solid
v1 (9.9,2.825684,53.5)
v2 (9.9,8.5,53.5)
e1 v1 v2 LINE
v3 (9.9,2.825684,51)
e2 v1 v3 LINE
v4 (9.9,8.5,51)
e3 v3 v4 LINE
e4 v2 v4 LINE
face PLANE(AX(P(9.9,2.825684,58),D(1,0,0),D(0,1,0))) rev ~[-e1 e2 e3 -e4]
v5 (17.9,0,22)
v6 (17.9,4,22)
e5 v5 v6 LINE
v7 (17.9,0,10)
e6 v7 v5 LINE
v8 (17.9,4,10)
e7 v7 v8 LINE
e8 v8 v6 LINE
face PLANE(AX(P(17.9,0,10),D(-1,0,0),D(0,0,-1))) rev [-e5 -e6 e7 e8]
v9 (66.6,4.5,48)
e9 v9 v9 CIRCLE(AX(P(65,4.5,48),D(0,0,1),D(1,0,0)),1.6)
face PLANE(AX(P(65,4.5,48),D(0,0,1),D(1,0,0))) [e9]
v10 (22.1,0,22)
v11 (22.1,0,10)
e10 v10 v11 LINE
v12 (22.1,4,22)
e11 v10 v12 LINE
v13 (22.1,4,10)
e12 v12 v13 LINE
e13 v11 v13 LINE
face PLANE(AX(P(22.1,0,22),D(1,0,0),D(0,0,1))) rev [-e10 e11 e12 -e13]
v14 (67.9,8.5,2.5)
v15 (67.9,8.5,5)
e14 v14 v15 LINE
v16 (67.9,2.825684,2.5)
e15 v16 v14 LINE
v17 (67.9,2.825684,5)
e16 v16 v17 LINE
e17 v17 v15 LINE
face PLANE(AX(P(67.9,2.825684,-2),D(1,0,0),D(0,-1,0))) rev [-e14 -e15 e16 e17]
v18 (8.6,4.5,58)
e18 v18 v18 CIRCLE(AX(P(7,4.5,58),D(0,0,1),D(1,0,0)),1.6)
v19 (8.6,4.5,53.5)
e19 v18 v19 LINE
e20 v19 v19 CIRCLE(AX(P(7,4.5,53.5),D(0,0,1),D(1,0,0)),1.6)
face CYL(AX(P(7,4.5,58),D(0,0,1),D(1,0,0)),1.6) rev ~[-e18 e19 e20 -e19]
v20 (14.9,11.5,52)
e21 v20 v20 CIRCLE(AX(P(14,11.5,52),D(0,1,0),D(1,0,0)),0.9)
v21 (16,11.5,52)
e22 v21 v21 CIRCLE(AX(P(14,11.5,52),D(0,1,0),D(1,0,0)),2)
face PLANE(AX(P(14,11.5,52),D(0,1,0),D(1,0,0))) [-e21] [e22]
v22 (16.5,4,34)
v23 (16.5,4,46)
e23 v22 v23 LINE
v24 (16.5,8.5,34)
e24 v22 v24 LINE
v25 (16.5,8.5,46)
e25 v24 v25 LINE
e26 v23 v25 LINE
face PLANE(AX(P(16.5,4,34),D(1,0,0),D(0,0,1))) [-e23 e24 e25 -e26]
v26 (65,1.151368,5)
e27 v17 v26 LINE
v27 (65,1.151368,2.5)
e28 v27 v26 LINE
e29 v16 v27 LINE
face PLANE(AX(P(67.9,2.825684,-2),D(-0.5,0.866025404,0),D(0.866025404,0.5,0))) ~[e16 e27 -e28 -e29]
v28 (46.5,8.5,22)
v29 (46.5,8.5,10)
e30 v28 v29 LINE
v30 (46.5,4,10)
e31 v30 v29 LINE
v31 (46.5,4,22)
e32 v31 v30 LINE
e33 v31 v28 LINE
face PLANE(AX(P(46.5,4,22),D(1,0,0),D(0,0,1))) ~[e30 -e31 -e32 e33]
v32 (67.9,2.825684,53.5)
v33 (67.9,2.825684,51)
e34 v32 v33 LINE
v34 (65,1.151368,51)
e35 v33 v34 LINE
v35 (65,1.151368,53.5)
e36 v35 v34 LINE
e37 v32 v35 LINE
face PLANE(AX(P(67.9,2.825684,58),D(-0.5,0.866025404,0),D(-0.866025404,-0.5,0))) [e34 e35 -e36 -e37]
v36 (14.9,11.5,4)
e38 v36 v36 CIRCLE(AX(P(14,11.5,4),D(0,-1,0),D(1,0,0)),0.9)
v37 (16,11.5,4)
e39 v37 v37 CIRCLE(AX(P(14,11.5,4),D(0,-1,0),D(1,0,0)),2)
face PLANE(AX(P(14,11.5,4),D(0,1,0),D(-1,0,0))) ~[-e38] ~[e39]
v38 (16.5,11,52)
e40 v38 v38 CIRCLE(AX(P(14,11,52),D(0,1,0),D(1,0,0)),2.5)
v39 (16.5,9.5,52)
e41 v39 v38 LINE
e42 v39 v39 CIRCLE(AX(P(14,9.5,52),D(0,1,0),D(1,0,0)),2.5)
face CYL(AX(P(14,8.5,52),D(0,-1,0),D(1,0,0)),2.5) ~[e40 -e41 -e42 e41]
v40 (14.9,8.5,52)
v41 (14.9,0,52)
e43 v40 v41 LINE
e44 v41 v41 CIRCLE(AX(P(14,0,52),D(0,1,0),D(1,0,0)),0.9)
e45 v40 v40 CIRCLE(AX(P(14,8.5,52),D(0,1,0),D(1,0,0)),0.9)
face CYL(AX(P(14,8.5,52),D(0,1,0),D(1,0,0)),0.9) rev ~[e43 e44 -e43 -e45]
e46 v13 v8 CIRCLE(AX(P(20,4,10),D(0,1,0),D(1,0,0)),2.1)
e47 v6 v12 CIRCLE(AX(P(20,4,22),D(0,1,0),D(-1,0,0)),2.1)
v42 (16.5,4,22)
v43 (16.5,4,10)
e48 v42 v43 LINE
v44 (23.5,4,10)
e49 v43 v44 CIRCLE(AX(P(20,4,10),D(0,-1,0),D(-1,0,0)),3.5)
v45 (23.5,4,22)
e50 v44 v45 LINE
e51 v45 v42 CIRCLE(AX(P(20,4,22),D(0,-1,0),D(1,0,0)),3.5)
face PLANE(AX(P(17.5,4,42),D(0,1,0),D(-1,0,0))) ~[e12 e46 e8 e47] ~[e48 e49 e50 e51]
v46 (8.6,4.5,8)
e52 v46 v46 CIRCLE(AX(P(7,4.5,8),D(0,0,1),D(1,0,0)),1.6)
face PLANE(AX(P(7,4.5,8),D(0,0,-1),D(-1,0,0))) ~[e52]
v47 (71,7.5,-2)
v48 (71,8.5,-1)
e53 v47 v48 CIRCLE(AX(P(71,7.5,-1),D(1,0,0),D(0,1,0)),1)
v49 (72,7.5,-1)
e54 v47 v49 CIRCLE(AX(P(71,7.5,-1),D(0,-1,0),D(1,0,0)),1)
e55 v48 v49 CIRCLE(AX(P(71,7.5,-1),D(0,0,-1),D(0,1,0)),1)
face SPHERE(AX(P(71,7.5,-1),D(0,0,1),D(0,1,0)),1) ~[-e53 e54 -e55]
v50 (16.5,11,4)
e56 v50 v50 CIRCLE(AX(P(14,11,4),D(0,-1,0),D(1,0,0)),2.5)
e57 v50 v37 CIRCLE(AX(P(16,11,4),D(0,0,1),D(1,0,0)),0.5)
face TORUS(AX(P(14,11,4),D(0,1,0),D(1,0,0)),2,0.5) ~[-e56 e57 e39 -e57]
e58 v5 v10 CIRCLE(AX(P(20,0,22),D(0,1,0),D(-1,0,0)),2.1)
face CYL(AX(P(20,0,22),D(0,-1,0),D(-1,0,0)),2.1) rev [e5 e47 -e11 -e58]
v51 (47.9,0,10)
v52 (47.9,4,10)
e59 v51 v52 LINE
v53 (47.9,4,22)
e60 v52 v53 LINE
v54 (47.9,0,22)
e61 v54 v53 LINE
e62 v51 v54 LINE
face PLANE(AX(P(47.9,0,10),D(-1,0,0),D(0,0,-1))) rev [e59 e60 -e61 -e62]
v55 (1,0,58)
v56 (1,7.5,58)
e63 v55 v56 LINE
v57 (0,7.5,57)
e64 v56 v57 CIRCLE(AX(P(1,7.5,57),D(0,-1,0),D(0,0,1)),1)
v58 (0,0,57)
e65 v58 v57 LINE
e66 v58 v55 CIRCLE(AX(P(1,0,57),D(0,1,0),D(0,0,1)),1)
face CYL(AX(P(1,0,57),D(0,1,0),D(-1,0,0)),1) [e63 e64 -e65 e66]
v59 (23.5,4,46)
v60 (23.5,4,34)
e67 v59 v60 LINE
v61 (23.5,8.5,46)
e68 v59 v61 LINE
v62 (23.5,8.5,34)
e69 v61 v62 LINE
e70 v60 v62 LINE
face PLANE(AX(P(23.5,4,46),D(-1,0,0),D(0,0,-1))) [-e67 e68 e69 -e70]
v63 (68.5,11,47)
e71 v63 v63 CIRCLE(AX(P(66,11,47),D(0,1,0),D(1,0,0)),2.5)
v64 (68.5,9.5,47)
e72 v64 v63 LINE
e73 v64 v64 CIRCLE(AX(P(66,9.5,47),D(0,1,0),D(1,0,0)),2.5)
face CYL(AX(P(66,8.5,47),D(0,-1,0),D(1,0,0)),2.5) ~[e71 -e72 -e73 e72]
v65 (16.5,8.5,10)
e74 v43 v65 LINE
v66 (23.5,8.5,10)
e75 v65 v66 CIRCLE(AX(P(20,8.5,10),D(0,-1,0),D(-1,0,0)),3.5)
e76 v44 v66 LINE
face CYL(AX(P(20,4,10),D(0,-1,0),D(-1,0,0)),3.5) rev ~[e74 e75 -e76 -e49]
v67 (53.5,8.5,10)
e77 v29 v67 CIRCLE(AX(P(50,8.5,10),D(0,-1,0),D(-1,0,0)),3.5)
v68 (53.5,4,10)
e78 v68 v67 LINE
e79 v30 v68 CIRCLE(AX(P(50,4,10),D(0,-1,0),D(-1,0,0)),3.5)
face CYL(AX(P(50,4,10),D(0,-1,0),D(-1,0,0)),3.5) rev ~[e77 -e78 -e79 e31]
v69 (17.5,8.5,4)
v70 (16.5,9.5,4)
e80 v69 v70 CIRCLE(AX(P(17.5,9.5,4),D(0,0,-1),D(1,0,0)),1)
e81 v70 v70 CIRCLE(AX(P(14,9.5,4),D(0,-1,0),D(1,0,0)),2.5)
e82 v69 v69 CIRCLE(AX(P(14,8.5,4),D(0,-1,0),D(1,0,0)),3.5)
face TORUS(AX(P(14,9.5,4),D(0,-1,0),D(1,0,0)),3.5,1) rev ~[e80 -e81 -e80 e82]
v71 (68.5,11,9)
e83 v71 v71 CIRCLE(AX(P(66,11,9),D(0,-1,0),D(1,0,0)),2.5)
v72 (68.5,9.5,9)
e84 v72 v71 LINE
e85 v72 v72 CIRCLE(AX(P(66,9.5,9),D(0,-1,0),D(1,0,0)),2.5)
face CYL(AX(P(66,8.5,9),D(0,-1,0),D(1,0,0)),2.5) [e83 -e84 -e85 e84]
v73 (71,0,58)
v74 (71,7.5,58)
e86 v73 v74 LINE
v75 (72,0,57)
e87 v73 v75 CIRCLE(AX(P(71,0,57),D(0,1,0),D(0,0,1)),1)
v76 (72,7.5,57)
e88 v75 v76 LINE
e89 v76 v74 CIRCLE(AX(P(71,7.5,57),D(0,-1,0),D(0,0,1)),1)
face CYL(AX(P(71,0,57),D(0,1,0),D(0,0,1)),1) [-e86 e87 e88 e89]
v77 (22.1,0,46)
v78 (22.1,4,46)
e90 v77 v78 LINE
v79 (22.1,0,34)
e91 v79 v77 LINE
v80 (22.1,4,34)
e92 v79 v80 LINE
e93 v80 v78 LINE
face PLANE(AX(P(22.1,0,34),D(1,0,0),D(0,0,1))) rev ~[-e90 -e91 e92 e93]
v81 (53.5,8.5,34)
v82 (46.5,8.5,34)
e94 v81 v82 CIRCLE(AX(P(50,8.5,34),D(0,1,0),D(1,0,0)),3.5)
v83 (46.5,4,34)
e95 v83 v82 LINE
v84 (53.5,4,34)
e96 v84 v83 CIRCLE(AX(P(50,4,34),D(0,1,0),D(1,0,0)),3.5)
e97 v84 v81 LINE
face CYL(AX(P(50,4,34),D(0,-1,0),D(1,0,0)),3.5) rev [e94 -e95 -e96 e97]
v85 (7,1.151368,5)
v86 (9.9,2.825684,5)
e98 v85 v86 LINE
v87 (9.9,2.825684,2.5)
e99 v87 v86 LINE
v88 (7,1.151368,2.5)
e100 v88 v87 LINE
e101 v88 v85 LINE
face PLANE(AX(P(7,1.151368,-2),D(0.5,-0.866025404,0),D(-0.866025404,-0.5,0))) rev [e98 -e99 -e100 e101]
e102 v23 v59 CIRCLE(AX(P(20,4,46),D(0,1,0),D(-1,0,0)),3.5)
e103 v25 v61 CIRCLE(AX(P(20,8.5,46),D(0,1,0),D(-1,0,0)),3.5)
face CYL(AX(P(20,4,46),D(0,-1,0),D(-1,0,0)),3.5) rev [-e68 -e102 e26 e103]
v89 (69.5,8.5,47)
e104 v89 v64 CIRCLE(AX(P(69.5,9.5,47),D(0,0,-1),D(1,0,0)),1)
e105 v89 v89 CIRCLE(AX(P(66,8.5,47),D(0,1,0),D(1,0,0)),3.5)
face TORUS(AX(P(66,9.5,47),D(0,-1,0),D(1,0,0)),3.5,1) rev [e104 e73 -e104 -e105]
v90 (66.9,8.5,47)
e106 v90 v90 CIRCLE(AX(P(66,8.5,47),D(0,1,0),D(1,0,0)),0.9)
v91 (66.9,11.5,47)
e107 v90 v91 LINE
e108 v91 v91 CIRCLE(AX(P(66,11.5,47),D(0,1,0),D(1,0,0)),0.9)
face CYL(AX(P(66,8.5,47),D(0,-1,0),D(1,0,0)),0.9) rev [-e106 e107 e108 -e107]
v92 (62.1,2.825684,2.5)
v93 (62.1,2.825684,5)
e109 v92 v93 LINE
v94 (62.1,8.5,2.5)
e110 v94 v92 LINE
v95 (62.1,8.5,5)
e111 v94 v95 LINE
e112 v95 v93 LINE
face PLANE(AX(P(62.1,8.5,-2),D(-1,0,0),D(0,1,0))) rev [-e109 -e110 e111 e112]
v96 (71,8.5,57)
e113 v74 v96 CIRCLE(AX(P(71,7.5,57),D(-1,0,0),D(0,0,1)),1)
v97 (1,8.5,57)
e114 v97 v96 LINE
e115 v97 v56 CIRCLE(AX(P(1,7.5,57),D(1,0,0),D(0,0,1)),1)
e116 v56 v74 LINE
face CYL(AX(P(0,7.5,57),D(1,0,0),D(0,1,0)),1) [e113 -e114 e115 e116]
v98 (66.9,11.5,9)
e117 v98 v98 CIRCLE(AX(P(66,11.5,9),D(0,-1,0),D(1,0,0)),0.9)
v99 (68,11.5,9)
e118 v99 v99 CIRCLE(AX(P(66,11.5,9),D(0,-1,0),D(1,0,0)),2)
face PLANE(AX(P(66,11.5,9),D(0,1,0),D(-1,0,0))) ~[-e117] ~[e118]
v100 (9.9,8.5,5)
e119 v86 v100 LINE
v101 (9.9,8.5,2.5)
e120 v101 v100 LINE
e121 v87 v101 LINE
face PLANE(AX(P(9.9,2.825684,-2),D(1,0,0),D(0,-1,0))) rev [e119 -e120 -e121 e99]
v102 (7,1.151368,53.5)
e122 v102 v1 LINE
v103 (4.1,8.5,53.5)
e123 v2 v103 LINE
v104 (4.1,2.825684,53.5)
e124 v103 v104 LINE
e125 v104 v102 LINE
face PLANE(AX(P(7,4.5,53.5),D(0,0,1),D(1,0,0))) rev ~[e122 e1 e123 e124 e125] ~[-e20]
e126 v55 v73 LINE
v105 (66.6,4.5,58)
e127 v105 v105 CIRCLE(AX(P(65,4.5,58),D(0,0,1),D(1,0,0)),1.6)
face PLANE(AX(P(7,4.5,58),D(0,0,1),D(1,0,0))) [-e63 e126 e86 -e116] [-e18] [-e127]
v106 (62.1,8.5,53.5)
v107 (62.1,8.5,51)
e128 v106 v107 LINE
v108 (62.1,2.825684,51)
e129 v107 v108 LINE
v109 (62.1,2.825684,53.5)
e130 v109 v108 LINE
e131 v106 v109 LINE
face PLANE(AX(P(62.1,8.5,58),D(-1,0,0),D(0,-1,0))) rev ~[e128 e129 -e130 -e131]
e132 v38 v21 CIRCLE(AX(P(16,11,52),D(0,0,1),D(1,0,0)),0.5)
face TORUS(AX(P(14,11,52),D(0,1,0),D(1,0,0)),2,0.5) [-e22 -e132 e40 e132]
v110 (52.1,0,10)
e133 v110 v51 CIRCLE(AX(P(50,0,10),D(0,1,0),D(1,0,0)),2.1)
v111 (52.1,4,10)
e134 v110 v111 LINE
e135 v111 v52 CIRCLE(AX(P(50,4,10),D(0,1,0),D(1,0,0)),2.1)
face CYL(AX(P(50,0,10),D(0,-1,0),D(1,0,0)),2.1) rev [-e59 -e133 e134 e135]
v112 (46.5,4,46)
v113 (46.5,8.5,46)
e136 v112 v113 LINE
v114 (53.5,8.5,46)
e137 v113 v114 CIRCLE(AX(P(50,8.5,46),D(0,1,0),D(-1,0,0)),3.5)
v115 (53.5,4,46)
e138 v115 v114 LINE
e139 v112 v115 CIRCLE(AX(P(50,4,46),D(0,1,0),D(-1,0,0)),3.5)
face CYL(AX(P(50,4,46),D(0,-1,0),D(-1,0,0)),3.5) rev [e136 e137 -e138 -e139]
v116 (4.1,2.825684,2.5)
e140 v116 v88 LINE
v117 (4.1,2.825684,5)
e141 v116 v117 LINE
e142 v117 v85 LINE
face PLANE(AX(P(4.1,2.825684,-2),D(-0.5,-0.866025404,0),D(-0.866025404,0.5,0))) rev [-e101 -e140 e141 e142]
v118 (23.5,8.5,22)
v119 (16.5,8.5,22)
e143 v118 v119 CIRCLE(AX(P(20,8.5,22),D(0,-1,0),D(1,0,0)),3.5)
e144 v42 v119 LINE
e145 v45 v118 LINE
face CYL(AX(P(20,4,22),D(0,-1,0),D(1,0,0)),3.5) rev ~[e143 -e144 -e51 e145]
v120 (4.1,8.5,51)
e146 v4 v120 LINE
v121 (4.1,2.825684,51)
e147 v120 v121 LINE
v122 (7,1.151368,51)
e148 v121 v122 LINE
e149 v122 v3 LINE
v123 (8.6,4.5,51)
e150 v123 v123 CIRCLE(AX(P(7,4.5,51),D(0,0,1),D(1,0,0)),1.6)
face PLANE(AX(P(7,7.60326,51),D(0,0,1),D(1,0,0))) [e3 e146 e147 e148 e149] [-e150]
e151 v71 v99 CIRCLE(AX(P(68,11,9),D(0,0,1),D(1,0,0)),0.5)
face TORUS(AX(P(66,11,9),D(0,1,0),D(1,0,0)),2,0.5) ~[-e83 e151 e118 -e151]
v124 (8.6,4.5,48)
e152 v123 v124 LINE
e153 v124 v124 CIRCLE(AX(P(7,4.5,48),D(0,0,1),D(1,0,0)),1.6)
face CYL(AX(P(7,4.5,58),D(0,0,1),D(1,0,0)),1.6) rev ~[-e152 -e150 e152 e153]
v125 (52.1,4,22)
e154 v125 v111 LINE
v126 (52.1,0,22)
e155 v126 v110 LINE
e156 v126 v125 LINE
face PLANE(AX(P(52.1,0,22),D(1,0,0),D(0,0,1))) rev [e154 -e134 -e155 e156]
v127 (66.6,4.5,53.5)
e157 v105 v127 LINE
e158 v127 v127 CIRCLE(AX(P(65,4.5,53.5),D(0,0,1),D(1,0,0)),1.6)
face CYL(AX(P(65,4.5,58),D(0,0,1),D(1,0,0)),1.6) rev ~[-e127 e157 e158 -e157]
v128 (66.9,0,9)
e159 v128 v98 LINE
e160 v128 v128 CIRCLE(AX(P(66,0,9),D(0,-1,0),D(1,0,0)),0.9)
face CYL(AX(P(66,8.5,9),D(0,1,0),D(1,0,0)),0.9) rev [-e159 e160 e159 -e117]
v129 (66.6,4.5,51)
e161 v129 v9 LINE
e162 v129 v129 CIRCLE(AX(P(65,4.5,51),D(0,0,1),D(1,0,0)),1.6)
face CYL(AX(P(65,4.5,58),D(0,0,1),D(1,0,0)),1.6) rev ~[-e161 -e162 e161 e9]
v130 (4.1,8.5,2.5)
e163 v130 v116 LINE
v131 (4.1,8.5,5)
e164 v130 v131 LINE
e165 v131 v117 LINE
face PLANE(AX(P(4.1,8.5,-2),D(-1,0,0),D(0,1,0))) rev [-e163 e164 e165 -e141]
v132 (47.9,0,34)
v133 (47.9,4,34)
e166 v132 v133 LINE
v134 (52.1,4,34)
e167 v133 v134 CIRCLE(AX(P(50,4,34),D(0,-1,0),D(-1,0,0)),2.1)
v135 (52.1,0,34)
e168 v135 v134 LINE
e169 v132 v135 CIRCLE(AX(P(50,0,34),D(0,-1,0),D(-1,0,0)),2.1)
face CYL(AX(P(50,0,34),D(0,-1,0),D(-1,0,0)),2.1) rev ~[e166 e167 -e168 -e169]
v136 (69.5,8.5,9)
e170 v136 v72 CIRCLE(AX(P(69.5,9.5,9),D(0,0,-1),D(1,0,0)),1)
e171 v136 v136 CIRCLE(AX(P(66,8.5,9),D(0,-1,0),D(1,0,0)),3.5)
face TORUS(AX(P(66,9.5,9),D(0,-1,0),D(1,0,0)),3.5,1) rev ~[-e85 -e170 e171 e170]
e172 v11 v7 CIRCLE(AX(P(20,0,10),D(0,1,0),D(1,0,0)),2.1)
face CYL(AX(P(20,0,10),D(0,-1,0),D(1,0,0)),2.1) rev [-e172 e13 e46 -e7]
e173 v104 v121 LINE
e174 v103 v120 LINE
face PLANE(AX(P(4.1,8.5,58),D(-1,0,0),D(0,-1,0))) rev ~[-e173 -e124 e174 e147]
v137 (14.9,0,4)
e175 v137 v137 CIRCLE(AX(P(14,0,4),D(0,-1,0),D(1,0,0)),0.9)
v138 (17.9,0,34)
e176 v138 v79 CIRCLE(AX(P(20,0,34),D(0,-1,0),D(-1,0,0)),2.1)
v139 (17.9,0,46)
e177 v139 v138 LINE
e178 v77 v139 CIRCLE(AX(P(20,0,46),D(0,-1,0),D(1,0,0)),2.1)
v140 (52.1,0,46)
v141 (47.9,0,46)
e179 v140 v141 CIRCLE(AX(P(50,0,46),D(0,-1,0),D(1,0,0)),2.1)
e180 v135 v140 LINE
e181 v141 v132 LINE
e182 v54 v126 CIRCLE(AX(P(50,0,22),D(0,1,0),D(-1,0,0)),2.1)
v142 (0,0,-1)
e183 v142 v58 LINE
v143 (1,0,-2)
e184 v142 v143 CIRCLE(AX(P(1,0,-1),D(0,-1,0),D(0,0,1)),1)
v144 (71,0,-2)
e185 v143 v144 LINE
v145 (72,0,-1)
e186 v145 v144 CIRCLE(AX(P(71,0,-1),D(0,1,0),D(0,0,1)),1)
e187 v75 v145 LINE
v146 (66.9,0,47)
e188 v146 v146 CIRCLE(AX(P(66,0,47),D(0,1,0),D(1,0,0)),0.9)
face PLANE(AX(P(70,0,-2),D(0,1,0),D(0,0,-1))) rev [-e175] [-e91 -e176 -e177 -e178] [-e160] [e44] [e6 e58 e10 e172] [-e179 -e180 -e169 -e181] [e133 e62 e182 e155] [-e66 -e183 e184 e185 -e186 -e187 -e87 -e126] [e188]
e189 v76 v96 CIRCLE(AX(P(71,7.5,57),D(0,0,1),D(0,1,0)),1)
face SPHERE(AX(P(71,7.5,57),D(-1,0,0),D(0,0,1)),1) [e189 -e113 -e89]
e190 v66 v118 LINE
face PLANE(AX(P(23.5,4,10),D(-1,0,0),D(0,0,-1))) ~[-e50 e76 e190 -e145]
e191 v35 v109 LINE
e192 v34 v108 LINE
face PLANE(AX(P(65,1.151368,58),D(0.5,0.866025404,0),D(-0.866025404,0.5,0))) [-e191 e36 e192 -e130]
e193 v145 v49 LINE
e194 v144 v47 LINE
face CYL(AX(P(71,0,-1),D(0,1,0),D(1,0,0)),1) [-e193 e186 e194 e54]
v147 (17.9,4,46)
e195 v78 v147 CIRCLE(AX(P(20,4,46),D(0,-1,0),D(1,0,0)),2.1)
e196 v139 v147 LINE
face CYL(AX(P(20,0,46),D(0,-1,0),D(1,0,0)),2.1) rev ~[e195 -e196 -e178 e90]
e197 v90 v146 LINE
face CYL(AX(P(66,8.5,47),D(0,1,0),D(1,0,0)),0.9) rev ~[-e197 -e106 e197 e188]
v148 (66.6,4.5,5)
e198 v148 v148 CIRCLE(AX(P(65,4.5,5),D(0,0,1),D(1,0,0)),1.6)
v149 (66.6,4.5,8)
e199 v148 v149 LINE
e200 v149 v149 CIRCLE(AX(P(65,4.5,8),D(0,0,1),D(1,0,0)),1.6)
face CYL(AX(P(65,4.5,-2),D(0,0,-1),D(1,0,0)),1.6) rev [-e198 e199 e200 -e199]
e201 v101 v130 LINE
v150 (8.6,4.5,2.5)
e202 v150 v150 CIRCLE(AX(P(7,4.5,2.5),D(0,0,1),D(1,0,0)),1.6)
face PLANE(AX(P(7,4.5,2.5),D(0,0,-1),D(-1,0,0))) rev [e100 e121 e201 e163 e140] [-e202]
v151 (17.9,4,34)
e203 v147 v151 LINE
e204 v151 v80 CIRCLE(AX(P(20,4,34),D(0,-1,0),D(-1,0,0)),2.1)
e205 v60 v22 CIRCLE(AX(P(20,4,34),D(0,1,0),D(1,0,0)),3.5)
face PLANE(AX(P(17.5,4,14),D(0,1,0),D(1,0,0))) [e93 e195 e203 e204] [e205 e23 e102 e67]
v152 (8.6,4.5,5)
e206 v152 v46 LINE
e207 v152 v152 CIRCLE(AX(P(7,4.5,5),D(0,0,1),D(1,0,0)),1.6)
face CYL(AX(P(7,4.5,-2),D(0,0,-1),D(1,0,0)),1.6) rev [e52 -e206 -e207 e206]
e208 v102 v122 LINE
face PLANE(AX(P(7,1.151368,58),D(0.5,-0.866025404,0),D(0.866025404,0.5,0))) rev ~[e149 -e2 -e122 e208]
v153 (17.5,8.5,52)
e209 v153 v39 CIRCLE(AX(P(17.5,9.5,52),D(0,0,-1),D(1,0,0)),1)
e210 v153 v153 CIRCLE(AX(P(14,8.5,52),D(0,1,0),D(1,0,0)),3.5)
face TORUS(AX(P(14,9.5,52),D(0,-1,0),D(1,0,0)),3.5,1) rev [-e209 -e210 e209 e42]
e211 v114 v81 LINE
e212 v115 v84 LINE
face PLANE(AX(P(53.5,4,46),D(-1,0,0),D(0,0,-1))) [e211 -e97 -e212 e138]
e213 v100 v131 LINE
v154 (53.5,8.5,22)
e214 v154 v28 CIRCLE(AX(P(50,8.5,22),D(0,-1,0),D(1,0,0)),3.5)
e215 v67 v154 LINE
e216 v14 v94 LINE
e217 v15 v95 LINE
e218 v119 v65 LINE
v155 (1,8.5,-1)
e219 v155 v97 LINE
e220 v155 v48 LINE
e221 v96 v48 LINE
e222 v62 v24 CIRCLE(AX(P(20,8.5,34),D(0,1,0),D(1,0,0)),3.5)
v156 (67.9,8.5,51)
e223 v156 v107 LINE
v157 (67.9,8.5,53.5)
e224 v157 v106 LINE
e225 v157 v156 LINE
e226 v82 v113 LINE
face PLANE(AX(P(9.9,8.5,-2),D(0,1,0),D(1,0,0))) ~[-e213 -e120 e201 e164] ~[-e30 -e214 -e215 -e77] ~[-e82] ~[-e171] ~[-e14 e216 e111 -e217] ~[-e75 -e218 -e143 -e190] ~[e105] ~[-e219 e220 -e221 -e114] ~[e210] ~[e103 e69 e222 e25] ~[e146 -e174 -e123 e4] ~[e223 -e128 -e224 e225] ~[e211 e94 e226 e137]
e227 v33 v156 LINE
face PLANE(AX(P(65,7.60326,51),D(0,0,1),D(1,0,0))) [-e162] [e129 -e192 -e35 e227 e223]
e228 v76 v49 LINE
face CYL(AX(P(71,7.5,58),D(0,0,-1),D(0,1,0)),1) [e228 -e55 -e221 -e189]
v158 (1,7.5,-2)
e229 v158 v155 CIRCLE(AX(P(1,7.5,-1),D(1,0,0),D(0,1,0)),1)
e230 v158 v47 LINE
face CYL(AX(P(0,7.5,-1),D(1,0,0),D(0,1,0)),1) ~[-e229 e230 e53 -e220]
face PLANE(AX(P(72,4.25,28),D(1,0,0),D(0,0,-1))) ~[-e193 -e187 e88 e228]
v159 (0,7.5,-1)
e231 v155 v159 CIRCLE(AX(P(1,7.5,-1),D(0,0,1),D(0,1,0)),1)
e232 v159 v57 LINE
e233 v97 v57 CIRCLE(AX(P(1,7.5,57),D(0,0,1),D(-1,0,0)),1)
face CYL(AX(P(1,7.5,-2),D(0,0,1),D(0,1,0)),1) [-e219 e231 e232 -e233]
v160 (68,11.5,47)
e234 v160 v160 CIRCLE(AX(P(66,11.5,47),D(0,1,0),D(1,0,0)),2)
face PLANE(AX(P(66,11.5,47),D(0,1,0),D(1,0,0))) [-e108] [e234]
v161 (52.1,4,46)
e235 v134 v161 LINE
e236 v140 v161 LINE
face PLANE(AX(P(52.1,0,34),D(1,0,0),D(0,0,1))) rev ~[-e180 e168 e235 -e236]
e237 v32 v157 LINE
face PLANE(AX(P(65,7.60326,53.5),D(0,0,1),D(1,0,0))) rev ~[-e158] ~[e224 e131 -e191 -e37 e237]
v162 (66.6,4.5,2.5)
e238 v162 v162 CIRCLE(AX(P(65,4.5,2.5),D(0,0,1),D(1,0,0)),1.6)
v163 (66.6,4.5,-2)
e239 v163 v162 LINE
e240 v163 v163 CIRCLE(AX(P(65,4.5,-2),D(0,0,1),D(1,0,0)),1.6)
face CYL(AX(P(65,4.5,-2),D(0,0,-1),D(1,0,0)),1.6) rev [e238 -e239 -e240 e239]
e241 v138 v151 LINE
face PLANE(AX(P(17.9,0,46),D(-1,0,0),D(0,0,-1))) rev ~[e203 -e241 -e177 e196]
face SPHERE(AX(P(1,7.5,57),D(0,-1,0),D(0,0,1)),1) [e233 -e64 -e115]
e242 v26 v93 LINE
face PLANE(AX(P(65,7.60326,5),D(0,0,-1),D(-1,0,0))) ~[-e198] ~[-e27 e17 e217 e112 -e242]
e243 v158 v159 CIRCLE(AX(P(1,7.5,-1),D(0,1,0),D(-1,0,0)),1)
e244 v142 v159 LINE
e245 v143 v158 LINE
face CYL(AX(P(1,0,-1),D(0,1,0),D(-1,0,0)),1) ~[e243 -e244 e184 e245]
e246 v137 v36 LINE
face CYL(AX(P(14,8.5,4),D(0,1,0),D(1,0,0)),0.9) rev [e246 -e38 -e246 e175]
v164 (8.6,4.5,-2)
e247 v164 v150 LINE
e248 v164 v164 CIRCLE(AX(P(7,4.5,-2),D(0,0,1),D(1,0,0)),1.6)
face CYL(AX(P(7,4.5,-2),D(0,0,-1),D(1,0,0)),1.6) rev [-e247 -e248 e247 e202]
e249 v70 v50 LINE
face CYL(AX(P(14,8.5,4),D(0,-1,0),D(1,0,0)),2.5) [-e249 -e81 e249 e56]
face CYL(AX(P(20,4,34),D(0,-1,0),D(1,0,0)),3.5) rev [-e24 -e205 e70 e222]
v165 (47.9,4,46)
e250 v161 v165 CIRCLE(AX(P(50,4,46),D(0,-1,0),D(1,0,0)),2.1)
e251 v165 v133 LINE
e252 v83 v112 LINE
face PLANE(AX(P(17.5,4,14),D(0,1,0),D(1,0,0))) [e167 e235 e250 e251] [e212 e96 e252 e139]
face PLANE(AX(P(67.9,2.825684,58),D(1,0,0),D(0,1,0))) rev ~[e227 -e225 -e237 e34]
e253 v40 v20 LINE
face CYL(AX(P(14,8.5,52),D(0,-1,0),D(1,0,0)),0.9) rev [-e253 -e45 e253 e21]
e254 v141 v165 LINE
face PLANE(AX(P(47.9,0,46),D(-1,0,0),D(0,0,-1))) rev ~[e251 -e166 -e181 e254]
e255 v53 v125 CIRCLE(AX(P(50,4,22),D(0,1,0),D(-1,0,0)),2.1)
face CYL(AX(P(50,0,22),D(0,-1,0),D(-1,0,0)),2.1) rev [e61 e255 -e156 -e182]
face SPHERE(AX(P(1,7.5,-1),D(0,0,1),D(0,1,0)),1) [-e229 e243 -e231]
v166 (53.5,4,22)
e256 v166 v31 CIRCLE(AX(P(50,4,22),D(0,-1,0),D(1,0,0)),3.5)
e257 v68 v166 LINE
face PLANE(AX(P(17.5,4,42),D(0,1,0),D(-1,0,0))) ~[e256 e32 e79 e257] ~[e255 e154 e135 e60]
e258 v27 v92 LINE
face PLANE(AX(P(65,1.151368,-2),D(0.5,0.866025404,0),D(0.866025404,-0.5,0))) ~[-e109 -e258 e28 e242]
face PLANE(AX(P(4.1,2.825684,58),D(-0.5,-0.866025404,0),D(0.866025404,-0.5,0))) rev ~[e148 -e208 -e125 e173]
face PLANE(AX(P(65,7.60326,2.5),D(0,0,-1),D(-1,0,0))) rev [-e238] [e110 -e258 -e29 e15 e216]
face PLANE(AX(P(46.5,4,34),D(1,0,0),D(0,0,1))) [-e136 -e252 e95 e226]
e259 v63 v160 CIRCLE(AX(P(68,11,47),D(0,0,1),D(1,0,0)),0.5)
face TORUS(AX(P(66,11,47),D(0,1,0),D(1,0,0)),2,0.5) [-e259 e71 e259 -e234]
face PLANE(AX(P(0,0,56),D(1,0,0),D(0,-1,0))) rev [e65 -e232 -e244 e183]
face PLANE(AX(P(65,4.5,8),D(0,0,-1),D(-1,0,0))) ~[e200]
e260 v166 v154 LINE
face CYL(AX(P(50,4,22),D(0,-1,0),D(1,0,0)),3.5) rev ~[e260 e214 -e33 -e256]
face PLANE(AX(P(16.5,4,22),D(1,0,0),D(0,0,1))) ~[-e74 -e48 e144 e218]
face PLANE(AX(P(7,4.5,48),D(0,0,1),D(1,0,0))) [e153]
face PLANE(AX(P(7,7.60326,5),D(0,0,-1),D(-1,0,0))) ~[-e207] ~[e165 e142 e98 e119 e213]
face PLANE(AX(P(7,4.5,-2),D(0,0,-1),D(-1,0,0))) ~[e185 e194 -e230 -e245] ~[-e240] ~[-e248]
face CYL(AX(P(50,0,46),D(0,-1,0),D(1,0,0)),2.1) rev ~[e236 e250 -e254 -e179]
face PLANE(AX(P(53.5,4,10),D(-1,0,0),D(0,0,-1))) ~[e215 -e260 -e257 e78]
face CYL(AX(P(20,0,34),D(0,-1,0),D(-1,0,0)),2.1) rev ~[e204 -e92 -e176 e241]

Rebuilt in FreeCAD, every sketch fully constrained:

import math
import FreeCAD as App
import Part
import Sketcher
Q = App.Units.Quantity


def edges_at(feature, points):
    """Names of the edges that pass closest to the given points."""
    edges = feature.Shape.Edges
    near = lambda p: min(range(len(edges)), key=lambda i: edges[i].distToShape(Part.Vertex(*p))[0])
    return sorted({f"Edge{near(p) + 1}" for p in points})


def add_polygon(sketch, points):
    """Adds a closed chain of lines whose ends are joined by coincident constraints."""
    first, n = sketch.GeometryCount, len(points)
    for a, b in zip(points, points[1:] + points[:1]):
        sketch.addGeometry(Part.LineSegment(App.Vector(*a, 0), App.Vector(*b, 0)), False)
    for i in range(n):
        sketch.addConstraint(Sketcher.Constraint("Coincident", first + i, 2, first + (i + 1) % n, 1))

doc = App.newDocument("Part")
params = doc.addObject("Spreadsheet::Sheet", "Params")
for row, (alias, value) in enumerate([
    ("sketch1_radius", "2.1 mm"),
    ("sketch1_width", "70 mm"),
    ("sketch1_height", "56 mm"),
    ("sketch1_height2", "12 mm"),
    ("pad1_length", "4 mm"),
    ("sketch2_radius", "3.5 mm"),
    ("sketch2_width", "70 mm"),
    ("sketch2_height", "56 mm"),
    ("sketch2_height2", "12 mm"),
    ("pad2_length", "4.5 mm"),
    ("sketch3_width", "70 mm"),
    ("sketch3_height", "8.5 mm"),
    ("pad3_length", "2 mm"),
    ("sketch4_width", "70 mm"),
    ("sketch4_height", "8.5 mm"),
    ("pad4_length", "2 mm"),
    ("sketch5_diameter", "5 mm"),
    ("sketch5_diameter2", "1.8 mm"),
    ("pad5_length", "3 mm"),
    ("fillet_radius", "1 mm"),
    ("fillet2_radius", "0.5 mm"),
    ("sketch6_diameter", "1.8 mm"),
    ("pocket1_length", "30 mm"),
    ("sketch7_height", "60 mm"),
    ("sketch7_width", "8.5 mm"),
    ("pad6_length", "2 mm"),
    ("sketch8_width", "5.8 mm"),
    ("pocket2_length", "7 mm"),
    ("sketch9_diameter", "3.2 mm"),
    ("sketch9_width", "5.8 mm"),
    ("pad7_length", "4.5 mm"),
    ("sketch10_diameter", "3.2 mm"),
    ("pocket3_length", "10 mm"),
    ("pocket4_length", "30 mm"),
    ("fillet3_radius", "1 mm"),
], start=1):
    params.set(f"A{row}", alias)
    params.set(f"B{row}", "=" + value)
    params.setAlias(f"B{row}", alias)

body = doc.addObject("PartDesign::Body", "Body")

sketch1 = doc.addObject("Sketcher::SketchObject", "Sketch")
body.addObject(sketch1)
sketch1.AttachmentSupport = (doc.XZ_Plane, [""])
sketch1.MapMode = "FlatFace"
add_polygon(sketch1, [(0, 0), (0, 56), (70, 56), (70, 0)])
sketch1.addGeometry(Part.LineSegment(App.Vector(17.9, 46, 0), App.Vector(17.9, 34, 0)), False)
sketch1.addGeometry(Part.ArcOfCircle(Part.Circle(App.Vector(20, 34, 0), App.Vector(0, 0, 1), 2.1), math.radians(180), math.radians(360)), False)
sketch1.addGeometry(Part.LineSegment(App.Vector(22.1, 34, 0), App.Vector(22.1, 46, 0)), False)
sketch1.addGeometry(Part.ArcOfCircle(Part.Circle(App.Vector(20, 46, 0), App.Vector(0, 0, 1), 2.1), math.radians(0), math.radians(180)), False)
sketch1.addGeometry(Part.ArcOfCircle(Part.Circle(App.Vector(50, 34, 0), App.Vector(0, 0, 1), 2.1), math.radians(180), math.radians(360)), False)
sketch1.addGeometry(Part.LineSegment(App.Vector(52.1, 34, 0), App.Vector(52.1, 46, 0)), False)
sketch1.addGeometry(Part.ArcOfCircle(Part.Circle(App.Vector(50, 46, 0), App.Vector(0, 0, 1), 2.1), math.radians(0), math.radians(180)), False)
sketch1.addGeometry(Part.LineSegment(App.Vector(47.9, 46, 0), App.Vector(47.9, 34, 0)), False)
sketch1.addGeometry(Part.ArcOfCircle(Part.Circle(App.Vector(20, 22, 0), App.Vector(0, 0, 1), 2.1), math.radians(0), math.radians(180)), False)
sketch1.addGeometry(Part.LineSegment(App.Vector(17.9, 22, 0), App.Vector(17.9, 10, 0)), False)
sketch1.addGeometry(Part.ArcOfCircle(Part.Circle(App.Vector(20, 10, 0), App.Vector(0, 0, 1), 2.1), math.radians(180), math.radians(360)), False)
sketch1.addGeometry(Part.LineSegment(App.Vector(22.1, 10, 0), App.Vector(22.1, 22, 0)), False)
sketch1.addGeometry(Part.LineSegment(App.Vector(52.1, 10, 0), App.Vector(52.1, 22, 0)), False)
sketch1.addGeometry(Part.ArcOfCircle(Part.Circle(App.Vector(50, 22, 0), App.Vector(0, 0, 1), 2.1), math.radians(0), math.radians(180)), False)
sketch1.addGeometry(Part.LineSegment(App.Vector(47.9, 22, 0), App.Vector(47.9, 10, 0)), False)
sketch1.addGeometry(Part.ArcOfCircle(Part.Circle(App.Vector(50, 10, 0), App.Vector(0, 0, 1), 2.1), math.radians(180), math.radians(360)), False)
sketch1.addConstraint([
    Sketcher.Constraint("Tangent", 4, 2, 5, 1),
    Sketcher.Constraint("Tangent", 5, 2, 6, 1),
    Sketcher.Constraint("Tangent", 6, 2, 7, 1),
    Sketcher.Constraint("Tangent", 7, 2, 4, 1),
    Sketcher.Constraint("Tangent", 8, 2, 9, 1),
    Sketcher.Constraint("Tangent", 9, 2, 10, 1),
    Sketcher.Constraint("Tangent", 10, 2, 11, 1),
    Sketcher.Constraint("Tangent", 11, 2, 8, 1),
    Sketcher.Constraint("Tangent", 12, 2, 13, 1),
    Sketcher.Constraint("Tangent", 13, 2, 14, 1),
    Sketcher.Constraint("Tangent", 14, 2, 15, 1),
    Sketcher.Constraint("Tangent", 15, 2, 12, 1),
    Sketcher.Constraint("Tangent", 16, 2, 17, 1),
    Sketcher.Constraint("Tangent", 17, 2, 18, 1),
    Sketcher.Constraint("Tangent", 18, 2, 19, 1),
    Sketcher.Constraint("Tangent", 19, 2, 16, 1),
    Sketcher.Constraint("Vertical", 0),
    Sketcher.Constraint("Horizontal", 1),
    Sketcher.Constraint("Vertical", 2),
    Sketcher.Constraint("Horizontal", 3),
    Sketcher.Constraint("Vertical", 4),
    Sketcher.Constraint("Vertical", 6),
    Sketcher.Constraint("Vertical", 9),
    Sketcher.Constraint("Vertical", 11),
    Sketcher.Constraint("Vertical", 13),
    Sketcher.Constraint("Vertical", 15),
    Sketcher.Constraint("Vertical", 16),
    Sketcher.Constraint("Vertical", 18),
    Sketcher.Constraint("Coincident", 3, 2, -1, 1),
    Sketcher.Constraint("Equal", 7, 8),
    Sketcher.Constraint("Equal", 10, 12),
    Sketcher.Constraint("Equal", 14, 17),
    Sketcher.Constraint("Horizontal", 5, 3, 8, 3),
    Sketcher.Constraint("Horizontal", 7, 3, 10, 3),
    Sketcher.Constraint("Horizontal", 12, 3, 17, 3),
    Sketcher.Constraint("Horizontal", 14, 3, 19, 3),
    Sketcher.Constraint("Vertical", 7, 3, 12, 3),
    Sketcher.Constraint("Vertical", 10, 3, 17, 3),
    Sketcher.Constraint("Equal", 11, 13),
    Sketcher.Constraint("Radius", 5, 2.1),
    Sketcher.Constraint("DistanceX", 1, 1, 1, 2, 70.0),
    Sketcher.Constraint("DistanceY", 0, 1, 0, 2, 56.0),
    Sketcher.Constraint("DistanceY", 4, 2, 4, 1, 12.0),
    Sketcher.Constraint("DistanceX", -1, 1, 5, 3, 20.0),
    Sketcher.Constraint("DistanceY", -1, 1, 5, 3, 34.0),
    Sketcher.Constraint("DistanceX", -1, 1, 8, 3, 50.0),
    Sketcher.Constraint("DistanceY", -1, 1, 12, 3, 22.0),
])
sketch1.setExpression("Constraints[43]", "Params.sketch1_radius")
sketch1.setExpression("Constraints[44]", "Params.sketch1_width")
sketch1.setExpression("Constraints[45]", "Params.sketch1_height")
sketch1.setExpression("Constraints[46]", "Params.sketch1_height2")
pad1 = doc.addObject("PartDesign::Pad", "Pad")
body.addObject(pad1)
pad1.Profile = sketch1
pad1.setExpression("Length", "Params.pad1_length")
pad1.Reversed = True

sketch2 = doc.addObject("Sketcher::SketchObject", "Sketch001")
body.addObject(sketch2)
sketch2.AttachmentSupport = (doc.XZ_Plane, [""])
sketch2.MapMode = "FlatFace"
sketch2.AttachmentOffset = App.Placement(App.Vector(0, 0, -4), App.Rotation())
add_polygon(sketch2, [(0, 0), (0, 56), (70, 56), (70, 0)])
sketch2.addGeometry(Part.LineSegment(App.Vector(16.5, 46, 0), App.Vector(16.5, 34, 0)), False)
sketch2.addGeometry(Part.ArcOfCircle(Part.Circle(App.Vector(20, 34, 0), App.Vector(0, 0, 1), 3.5), math.radians(180), math.radians(360)), False)
sketch2.addGeometry(Part.LineSegment(App.Vector(23.5, 34, 0), App.Vector(23.5, 46, 0)), False)
sketch2.addGeometry(Part.ArcOfCircle(Part.Circle(App.Vector(20, 46, 0), App.Vector(0, 0, 1), 3.5), math.radians(0), math.radians(180)), False)
sketch2.addGeometry(Part.LineSegment(App.Vector(46.5, 46, 0), App.Vector(46.5, 34, 0)), False)
sketch2.addGeometry(Part.ArcOfCircle(Part.Circle(App.Vector(50, 34, 0), App.Vector(0, 0, 1), 3.5), math.radians(180), math.radians(360)), False)
sketch2.addGeometry(Part.LineSegment(App.Vector(53.5, 34, 0), App.Vector(53.5, 46, 0)), False)
sketch2.addGeometry(Part.ArcOfCircle(Part.Circle(App.Vector(50, 46, 0), App.Vector(0, 0, 1), 3.5), math.radians(0), math.radians(180)), False)
sketch2.addGeometry(Part.LineSegment(App.Vector(23.5, 10, 0), App.Vector(23.5, 22, 0)), False)
sketch2.addGeometry(Part.ArcOfCircle(Part.Circle(App.Vector(20, 22, 0), App.Vector(0, 0, 1), 3.5), math.radians(0), math.radians(180)), False)
sketch2.addGeometry(Part.LineSegment(App.Vector(16.5, 22, 0), App.Vector(16.5, 10, 0)), False)
sketch2.addGeometry(Part.ArcOfCircle(Part.Circle(App.Vector(20, 10, 0), App.Vector(0, 0, 1), 3.5), math.radians(180), math.radians(360)), False)
sketch2.addGeometry(Part.LineSegment(App.Vector(46.5, 22, 0), App.Vector(46.5, 10, 0)), False)
sketch2.addGeometry(Part.ArcOfCircle(Part.Circle(App.Vector(50, 10, 0), App.Vector(0, 0, 1), 3.5), math.radians(180), math.radians(360)), False)
sketch2.addGeometry(Part.LineSegment(App.Vector(53.5, 10, 0), App.Vector(53.5, 22, 0)), False)
sketch2.addGeometry(Part.ArcOfCircle(Part.Circle(App.Vector(50, 22, 0), App.Vector(0, 0, 1), 3.5), math.radians(0), math.radians(180)), False)
sketch2.addConstraint([
    Sketcher.Constraint("Tangent", 4, 2, 5, 1),
    Sketcher.Constraint("Tangent", 5, 2, 6, 1),
    Sketcher.Constraint("Tangent", 6, 2, 7, 1),
    Sketcher.Constraint("Tangent", 7, 2, 4, 1),
    Sketcher.Constraint("Tangent", 8, 2, 9, 1),
    Sketcher.Constraint("Tangent", 9, 2, 10, 1),
    Sketcher.Constraint("Tangent", 10, 2, 11, 1),
    Sketcher.Constraint("Tangent", 11, 2, 8, 1),
    Sketcher.Constraint("Tangent", 12, 2, 13, 1),
    Sketcher.Constraint("Tangent", 13, 2, 14, 1),
    Sketcher.Constraint("Tangent", 14, 2, 15, 1),
    Sketcher.Constraint("Tangent", 15, 2, 12, 1),
    Sketcher.Constraint("Tangent", 16, 2, 17, 1),
    Sketcher.Constraint("Tangent", 17, 2, 18, 1),
    Sketcher.Constraint("Tangent", 18, 2, 19, 1),
    Sketcher.Constraint("Tangent", 19, 2, 16, 1),
    Sketcher.Constraint("Vertical", 0),
    Sketcher.Constraint("Horizontal", 1),
    Sketcher.Constraint("Vertical", 2),
    Sketcher.Constraint("Horizontal", 3),
    Sketcher.Constraint("Vertical", 4),
    Sketcher.Constraint("Vertical", 6),
    Sketcher.Constraint("Vertical", 8),
    Sketcher.Constraint("Vertical", 10),
    Sketcher.Constraint("Vertical", 12),
    Sketcher.Constraint("Vertical", 14),
    Sketcher.Constraint("Vertical", 16),
    Sketcher.Constraint("Vertical", 18),
    Sketcher.Constraint("Coincident", 3, 2, -1, 1),
    Sketcher.Constraint("Equal", 7, 9),
    Sketcher.Constraint("Equal", 11, 13),
    Sketcher.Constraint("Equal", 15, 17),
    Sketcher.Constraint("Horizontal", 5, 3, 9, 3),
    Sketcher.Constraint("Horizontal", 7, 3, 11, 3),
    Sketcher.Constraint("Horizontal", 15, 3, 17, 3),
    Sketcher.Constraint("Horizontal", 13, 3, 19, 3),
    Sketcher.Constraint("Vertical", 7, 3, 13, 3),
    Sketcher.Constraint("Vertical", 11, 3, 17, 3),
    Sketcher.Constraint("Equal", 10, 12),
    Sketcher.Constraint("Radius", 5, 3.5),
    Sketcher.Constraint("DistanceX", 1, 1, 1, 2, 70.0),
    Sketcher.Constraint("DistanceY", 0, 1, 0, 2, 56.0),
    Sketcher.Constraint("DistanceY", 4, 2, 4, 1, 12.0),
    Sketcher.Constraint("DistanceX", -1, 1, 5, 3, 20.0),
    Sketcher.Constraint("DistanceY", -1, 1, 5, 3, 34.0),
    Sketcher.Constraint("DistanceX", -1, 1, 9, 3, 50.0),
    Sketcher.Constraint("DistanceY", -1, 1, 13, 3, 22.0),
])
sketch2.setExpression("Constraints[43]", "Params.sketch2_radius")
sketch2.setExpression("Constraints[44]", "Params.sketch2_width")
sketch2.setExpression("Constraints[45]", "Params.sketch2_height")
sketch2.setExpression("Constraints[46]", "Params.sketch2_height2")
pad2 = doc.addObject("PartDesign::Pad", "Pad001")
body.addObject(pad2)
pad2.Profile = sketch2
pad2.setExpression("Length", "Params.pad2_length")
pad2.Reversed = True

sketch3 = doc.addObject("Sketcher::SketchObject", "Sketch002")
body.addObject(sketch3)
sketch3.AttachmentSupport = (doc.XY_Plane, [""])
sketch3.MapMode = "FlatFace"
sketch3.AttachmentOffset = App.Placement(App.Vector(0, 0, 56), App.Rotation())
add_polygon(sketch3, [(0, 8.5), (0, 0), (70, 0), (70, 8.5)])
sketch3.addConstraint([
    Sketcher.Constraint("Vertical", 0),
    Sketcher.Constraint("Horizontal", 1),
    Sketcher.Constraint("Vertical", 2),
    Sketcher.Constraint("Horizontal", 3),
    Sketcher.Constraint("Coincident", 0, 2, -1, 1),
    Sketcher.Constraint("DistanceX", 1, 1, 1, 2, 70.0),
    Sketcher.Constraint("DistanceY", 0, 2, 0, 1, 8.5),
])
sketch3.setExpression("Constraints[9]", "Params.sketch3_width")
sketch3.setExpression("Constraints[10]", "Params.sketch3_height")
pad3 = doc.addObject("PartDesign::Pad", "Pad002")
body.addObject(pad3)
pad3.Profile = sketch3
pad3.setExpression("Length", "Params.pad3_length")

sketch4 = doc.addObject("Sketcher::SketchObject", "Sketch003")
body.addObject(sketch4)
sketch4.AttachmentSupport = (doc.XY_Plane, [""])
sketch4.MapMode = "FlatFace"
add_polygon(sketch4, [(70, 8.5), (70, 0), (0, 0), (0, 8.5)])
sketch4.addConstraint([
    Sketcher.Constraint("Vertical", 0),
    Sketcher.Constraint("Horizontal", 1),
    Sketcher.Constraint("Vertical", 2),
    Sketcher.Constraint("Horizontal", 3),
    Sketcher.Constraint("Coincident", 1, 2, -1, 1),
    Sketcher.Constraint("DistanceX", 1, 2, 1, 1, 70.0),
    Sketcher.Constraint("DistanceY", 0, 2, 0, 1, 8.5),
])
sketch4.setExpression("Constraints[9]", "Params.sketch4_width")
sketch4.setExpression("Constraints[10]", "Params.sketch4_height")
pad4 = doc.addObject("PartDesign::Pad", "Pad003")
body.addObject(pad4)
pad4.Profile = sketch4
pad4.setExpression("Length", "Params.pad4_length")
pad4.Reversed = True

sketch5 = doc.addObject("Sketcher::SketchObject", "Sketch004")
body.addObject(sketch5)
sketch5.AttachmentSupport = (doc.XZ_Plane, [""])
sketch5.MapMode = "FlatFace"
sketch5.AttachmentOffset = App.Placement(App.Vector(0, 0, -8.5), App.Rotation())
sketch5.addGeometry([
    Part.Circle(App.Vector(14, 4, 0), App.Vector(0, 0, 1), 2.5),
    Part.Circle(App.Vector(14, 4, 0), App.Vector(0, 0, 1), 0.9),
    Part.Circle(App.Vector(14, 52, 0), App.Vector(0, 0, 1), 2.5),
    Part.Circle(App.Vector(14, 52, 0), App.Vector(0, 0, 1), 0.9),
    Part.Circle(App.Vector(66, 47, 0), App.Vector(0, 0, 1), 2.5),
    Part.Circle(App.Vector(66, 47, 0), App.Vector(0, 0, 1), 0.9),
    Part.Circle(App.Vector(39.37226, 13.674819, 0), App.Vector(0, 0, 1), 2.5),
], False)
sketch5.addConstraint([
    Sketcher.Constraint("Coincident", 1, 3, 0, 3),
    Sketcher.Constraint("Coincident", 3, 3, 2, 3),
    Sketcher.Constraint("Coincident", 5, 3, 4, 3),
    Sketcher.Constraint("Equal", 0, 2),
    Sketcher.Constraint("Equal", 1, 3),
    Sketcher.Constraint("Equal", 2, 4),
    Sketcher.Constraint("Equal", 3, 5),
    Sketcher.Constraint("Equal", 4, 6),
    Sketcher.Constraint("Vertical", 1, 3, 2, 3),
    Sketcher.Constraint("Diameter", 0, 5.0),
    Sketcher.Constraint("Diameter", 1, 1.8),
    Sketcher.Constraint("DistanceX", -1, 1, 0, 3, 14.0),
    Sketcher.Constraint("DistanceY", -1, 1, 0, 3, 4.0),
    Sketcher.Constraint("DistanceY", -1, 1, 2, 3, 52.0),
    Sketcher.Constraint("DistanceX", -1, 1, 4, 3, 66.0),
    Sketcher.Constraint("DistanceY", -1, 1, 4, 3, 47.0),
    Sketcher.Constraint("DistanceX", -1, 1, 6, 3, 39.37226),
    Sketcher.Constraint("DistanceY", -1, 1, 6, 3, 13.674819),
])
sketch5.setExpression("Constraints[9]", "Params.sketch5_diameter")
sketch5.setExpression("Constraints[10]", "Params.sketch5_diameter2")
pad5 = doc.addObject("PartDesign::Pad", "Pad004")
body.addObject(pad5)
pad5.Profile = sketch5
pad5.setExpression("Length", "Params.pad5_length")
pad5.Reversed = True
doc.recompute()

fillet = doc.addObject("PartDesign::Fillet", "Fillet")
body.addObject(fillet)
fillet.Base = (pad5, edges_at(pad5, [
    (11.5, 8.5, 4),
    (11.5, 8.5, 52),
    (36.872, 8.5, 13.675),
    (63.5, 8.5, 47),
]))
fillet.setExpression("Radius", "Params.fillet_radius")
doc.recompute()

fillet2 = doc.addObject("PartDesign::Fillet", "Fillet001")
body.addObject(fillet2)
fillet2.Base = (fillet, edges_at(fillet, [
    (11.5, 11.5, 4),
    (11.5, 11.5, 52),
    (36.872, 11.5, 13.675),
    (63.5, 11.5, 47),
]))
fillet2.setExpression("Radius", "Params.fillet2_radius")

sketch6 = doc.addObject("Sketcher::SketchObject", "Sketch005")
body.addObject(sketch6)
sketch6.AttachmentSupport = (doc.XZ_Plane, [""])
sketch6.MapMode = "FlatFace"
sketch6.AttachmentOffset = App.Placement(App.Vector(0, 0, -8.5), App.Rotation())
sketch6.addGeometry([
    Part.Circle(App.Vector(14, 52, 0), App.Vector(0, 0, 1), 0.9),
    Part.Circle(App.Vector(66, 47, 0), App.Vector(0, 0, 1), 0.9),
], False)
sketch6.addConstraint([
    Sketcher.Constraint("Equal", 0, 1),
    Sketcher.Constraint("Diameter", 0, 1.8),
    Sketcher.Constraint("DistanceX", -1, 1, 0, 3, 14.0),
    Sketcher.Constraint("DistanceY", -1, 1, 0, 3, 52.0),
    Sketcher.Constraint("DistanceX", -1, 1, 1, 3, 66.0),
    Sketcher.Constraint("DistanceY", -1, 1, 1, 3, 47.0),
])
sketch6.setExpression("Constraints[1]", "Params.sketch6_diameter")
pocket1 = doc.addObject("PartDesign::Pocket", "Pocket")
body.addObject(pocket1)
pocket1.Profile = sketch6
pocket1.setExpression("Length", "Params.pocket1_length")
pocket1.Reversed = True

sketch7 = doc.addObject("Sketcher::SketchObject", "Sketch006")
body.addObject(sketch7)
sketch7.AttachmentSupport = (doc.YZ_Plane, [""])
sketch7.MapMode = "FlatFace"
sketch7.AttachmentOffset = App.Placement(App.Vector(0, 0, 70), App.Rotation())
add_polygon(sketch7, [(8.5, 58), (0, 58), (0, -2), (8.5, -2)])
sketch7.addConstraint([
    Sketcher.Constraint("Horizontal", 0),
    Sketcher.Constraint("Vertical", 1),
    Sketcher.Constraint("Horizontal", 2),
    Sketcher.Constraint("Vertical", 3),
    Sketcher.Constraint("PointOnObject", 0, 2, -2),
    Sketcher.Constraint("DistanceY", 1, 2, 1, 1, 60.0),
    Sketcher.Constraint("DistanceX", 0, 2, 0, 1, 8.5),
    Sketcher.Constraint("DistanceY", -1, 1, 0, 2, 58.0),
])
sketch7.setExpression("Constraints[9]", "Params.sketch7_height")
sketch7.setExpression("Constraints[10]", "Params.sketch7_width")
pad6 = doc.addObject("PartDesign::Pad", "Pad005")
body.addObject(pad6)
pad6.Profile = sketch7
pad6.setExpression("Length", "Params.pad6_length")

sketch8 = doc.addObject("Sketcher::SketchObject", "Sketch007")
body.addObject(sketch8)
sketch8.AttachmentSupport = (doc.XY_Plane, [""])
sketch8.MapMode = "FlatFace"
sketch8.AttachmentOffset = App.Placement(App.Vector(0, 0, 58), App.Rotation())
add_polygon(sketch8, [(9.9, 8.5), (4.1, 8.5), (4.1, 2.825684), (7, 1.151368), (9.9, 2.825684)])
add_polygon(sketch8, [(67.9, 8.5), (62.1, 8.5), (62.1, 2.825684), (65, 1.151368), (67.9, 2.825684)])
sketch8.addConstraint([
    Sketcher.Constraint("Horizontal", 0),
    Sketcher.Constraint("Vertical", 1),
    Sketcher.Constraint("Vertical", 4),
    Sketcher.Constraint("Horizontal", 5),
    Sketcher.Constraint("Vertical", 6),
    Sketcher.Constraint("Vertical", 9),
    Sketcher.Constraint("Parallel", 2, 7),
    Sketcher.Constraint("Parallel", 3, 8),
    Sketcher.Constraint("Horizontal", 1, 2, 3, 2),
    Sketcher.Constraint("Horizontal", 4, 2, 5, 2),
    Sketcher.Constraint("Horizontal", 3, 2, 6, 2),
    Sketcher.Constraint("Horizontal", 2, 2, 7, 2),
    Sketcher.Constraint("Horizontal", 6, 2, 8, 2),
    Sketcher.Constraint("Equal", 2, 3),
    Sketcher.Constraint("Angle", 2, Q("-30 deg")),
    Sketcher.Constraint("DistanceX", 0, 2, 0, 1, 5.8),
    Sketcher.Constraint("DistanceX", -1, 1, 2, 2, 7.0),
    Sketcher.Constraint("DistanceX", -1, 1, 7, 2, 65.0),
    Sketcher.Constraint("DistanceY", -1, 1, 0, 2, 8.5),
    Sketcher.Constraint("DistanceY", 1, 2, 1, 1, 5.674316),
])
sketch8.setExpression("Constraints[25]", "Params.sketch8_width")
pocket2 = doc.addObject("PartDesign::Pocket", "Pocket001")
body.addObject(pocket2)
pocket2.Profile = sketch8
pocket2.setExpression("Length", "Params.pocket2_length")

sketch9 = doc.addObject("Sketcher::SketchObject", "Sketch008")
body.addObject(sketch9)
sketch9.AttachmentSupport = (doc.XY_Plane, [""])
sketch9.MapMode = "FlatFace"
sketch9.AttachmentOffset = App.Placement(App.Vector(0, 0, 58), App.Rotation())
add_polygon(sketch9, [(4.1, 2.825684), (7, 1.151368), (9.9, 2.825684), (9.9, 8.5), (4.1, 8.5)])
sketch9.addGeometry(Part.Circle(App.Vector(7, 4.5, 0), App.Vector(0, 0, 1), 1.6), False)
add_polygon(sketch9, [(67.9, 8.5), (62.1, 8.5), (62.1, 2.825684), (65, 1.151368), (67.9, 2.825684)])
sketch9.addGeometry(Part.Circle(App.Vector(65, 4.5, 0), App.Vector(0, 0, 1), 1.6), False)
sketch9.addConstraint([
    Sketcher.Constraint("Vertical", 2),
    Sketcher.Constraint("Horizontal", 3),
    Sketcher.Constraint("Vertical", 4),
    Sketcher.Constraint("Horizontal", 6),
    Sketcher.Constraint("Vertical", 7),
    Sketcher.Constraint("Vertical", 10),
    Sketcher.Constraint("Equal", 5, 11),
    Sketcher.Constraint("Parallel", 0, 8),
    Sketcher.Constraint("Parallel", 1, 9),
    Sketcher.Constraint("Horizontal", 5, 3, 11, 3),
    Sketcher.Constraint("Horizontal", 1, 2, 4, 2),
    Sketcher.Constraint("Horizontal", 3, 2, 6, 2),
    Sketcher.Constraint("Horizontal", 4, 2, 7, 2),
    Sketcher.Constraint("Horizontal", 0, 2, 8, 2),
    Sketcher.Constraint("Horizontal", 7, 2, 9, 2),
    Sketcher.Constraint("Vertical", 5, 3, 0, 2),
    Sketcher.Constraint("Vertical", 11, 3, 8, 2),
    Sketcher.Constraint("Equal", 0, 1),
    Sketcher.Constraint("Diameter", 5, 3.2),
    Sketcher.Constraint("Angle", 0, Q("-30 deg")),
    Sketcher.Constraint("DistanceX", 3, 2, 3, 1, 5.8),
    Sketcher.Constraint("DistanceX", -1, 1, 5, 3, 7.0),
    Sketcher.Constraint("DistanceX", -1, 1, 11, 3, 65.0),
    Sketcher.Constraint("DistanceY", 5, 3, 2, 2, 4.0),
    Sketcher.Constraint("DistanceY", -1, 1, 5, 3, 4.5),
    Sketcher.Constraint("DistanceY", 2, 1, 2, 2, 5.674316),
])
sketch9.setExpression("Constraints[28]", "Params.sketch9_diameter")
sketch9.setExpression("Constraints[30]", "Params.sketch9_width")
pad7 = doc.addObject("PartDesign::Pad", "Pad006")
body.addObject(pad7)
pad7.Profile = sketch9
pad7.setExpression("Length", "Params.pad7_length")
pad7.Reversed = True

sketch10 = doc.addObject("Sketcher::SketchObject", "Sketch009")
body.addObject(sketch10)
sketch10.AttachmentSupport = (doc.XY_Plane, [""])
sketch10.MapMode = "FlatFace"
sketch10.AttachmentOffset = App.Placement(App.Vector(0, 0, 58), App.Rotation())
sketch10.addGeometry([
    Part.Circle(App.Vector(7, 4.5, 0), App.Vector(0, 0, 1), 1.6),
    Part.Circle(App.Vector(65, 4.5, 0), App.Vector(0, 0, 1), 1.6),
], False)
sketch10.addConstraint([
    Sketcher.Constraint("Equal", 0, 1),
    Sketcher.Constraint("Horizontal", 0, 3, 1, 3),
    Sketcher.Constraint("Diameter", 0, 3.2),
    Sketcher.Constraint("DistanceX", -1, 1, 0, 3, 7.0),
    Sketcher.Constraint("DistanceX", -1, 1, 1, 3, 65.0),
    Sketcher.Constraint("DistanceY", -1, 1, 0, 3, 4.5),
])
sketch10.setExpression("Constraints[2]", "Params.sketch10_diameter")
pocket3 = doc.addObject("PartDesign::Pocket", "Pocket002")
body.addObject(pocket3)
pocket3.Profile = sketch10
pocket3.setExpression("Length", "Params.pocket3_length")

sketch11 = doc.addObject("Sketcher::SketchObject", "Sketch010")
body.addObject(sketch11)
sketch11.AttachmentSupport = (doc.XY_Plane, [""])
sketch11.MapMode = "FlatFace"
sketch11.AttachmentOffset = App.Placement(App.Vector(0, 0, -2), App.Rotation())
add_polygon(sketch11, [(72, 22.45883), (72, 0), (-2.912856, 0), (-2.912856, 22.45883)])
sketch11.addConstraint([
    Sketcher.Constraint("Vertical", 0),
    Sketcher.Constraint("Horizontal", 1),
    Sketcher.Constraint("Vertical", 2),
    Sketcher.Constraint("Horizontal", 3),
    Sketcher.Constraint("PointOnObject", 0, 2, -1),
    Sketcher.Constraint("DistanceX", -1, 1, 0, 2, 72.0),
    Sketcher.Constraint("DistanceY", 0, 2, 0, 1, 22.45883),
    Sketcher.Constraint("DistanceX", 1, 2, 1, 1, 74.912856),
])
pocket4 = doc.addObject("PartDesign::Pocket", "Pocket003")
body.addObject(pocket4)
pocket4.Profile = sketch11
pocket4.setExpression("Length", "Params.pocket4_length")
pocket4.Reversed = True
body2 = doc.addObject("PartDesign::Body", "Body001")
doc.recompute()

body2.BaseFeature = body
doc.recompute()

mirroring = doc.addObject("Part::Mirroring", "Mirroring")
mirroring.Source = body
mirroring.Base = App.Vector(0, 0, 28)
mirroring.Normal = App.Vector(0, 0, 1)
body3 = doc.addObject("PartDesign::Body", "Body002")
body3.BaseFeature = mirroring
boolean = doc.addObject("PartDesign::Boolean", "Boolean")
body2.addObject(boolean)
boolean.Type = "Fuse"
boolean.addObjects([body3])
doc.recompute()

fillet3 = doc.addObject("PartDesign::Fillet", "Fillet002")
body2.addObject(fillet3)
fillet3.Base = (boolean, edges_at(boolean, [
    (0, 4.25, 58),
    (36, 8.5, 58),
    (72, 4.25, 58),
    (72, 8.5, 28),
    (0, 8.5, 28),
    (36, 8.5, -2),
    (72, 4.25, -2),
    (0, 4.25, -2),
]))
fillet3.setExpression("Radius", "Params.fillet3_radius")
mirroring.Visibility = False

doc.recompute()
